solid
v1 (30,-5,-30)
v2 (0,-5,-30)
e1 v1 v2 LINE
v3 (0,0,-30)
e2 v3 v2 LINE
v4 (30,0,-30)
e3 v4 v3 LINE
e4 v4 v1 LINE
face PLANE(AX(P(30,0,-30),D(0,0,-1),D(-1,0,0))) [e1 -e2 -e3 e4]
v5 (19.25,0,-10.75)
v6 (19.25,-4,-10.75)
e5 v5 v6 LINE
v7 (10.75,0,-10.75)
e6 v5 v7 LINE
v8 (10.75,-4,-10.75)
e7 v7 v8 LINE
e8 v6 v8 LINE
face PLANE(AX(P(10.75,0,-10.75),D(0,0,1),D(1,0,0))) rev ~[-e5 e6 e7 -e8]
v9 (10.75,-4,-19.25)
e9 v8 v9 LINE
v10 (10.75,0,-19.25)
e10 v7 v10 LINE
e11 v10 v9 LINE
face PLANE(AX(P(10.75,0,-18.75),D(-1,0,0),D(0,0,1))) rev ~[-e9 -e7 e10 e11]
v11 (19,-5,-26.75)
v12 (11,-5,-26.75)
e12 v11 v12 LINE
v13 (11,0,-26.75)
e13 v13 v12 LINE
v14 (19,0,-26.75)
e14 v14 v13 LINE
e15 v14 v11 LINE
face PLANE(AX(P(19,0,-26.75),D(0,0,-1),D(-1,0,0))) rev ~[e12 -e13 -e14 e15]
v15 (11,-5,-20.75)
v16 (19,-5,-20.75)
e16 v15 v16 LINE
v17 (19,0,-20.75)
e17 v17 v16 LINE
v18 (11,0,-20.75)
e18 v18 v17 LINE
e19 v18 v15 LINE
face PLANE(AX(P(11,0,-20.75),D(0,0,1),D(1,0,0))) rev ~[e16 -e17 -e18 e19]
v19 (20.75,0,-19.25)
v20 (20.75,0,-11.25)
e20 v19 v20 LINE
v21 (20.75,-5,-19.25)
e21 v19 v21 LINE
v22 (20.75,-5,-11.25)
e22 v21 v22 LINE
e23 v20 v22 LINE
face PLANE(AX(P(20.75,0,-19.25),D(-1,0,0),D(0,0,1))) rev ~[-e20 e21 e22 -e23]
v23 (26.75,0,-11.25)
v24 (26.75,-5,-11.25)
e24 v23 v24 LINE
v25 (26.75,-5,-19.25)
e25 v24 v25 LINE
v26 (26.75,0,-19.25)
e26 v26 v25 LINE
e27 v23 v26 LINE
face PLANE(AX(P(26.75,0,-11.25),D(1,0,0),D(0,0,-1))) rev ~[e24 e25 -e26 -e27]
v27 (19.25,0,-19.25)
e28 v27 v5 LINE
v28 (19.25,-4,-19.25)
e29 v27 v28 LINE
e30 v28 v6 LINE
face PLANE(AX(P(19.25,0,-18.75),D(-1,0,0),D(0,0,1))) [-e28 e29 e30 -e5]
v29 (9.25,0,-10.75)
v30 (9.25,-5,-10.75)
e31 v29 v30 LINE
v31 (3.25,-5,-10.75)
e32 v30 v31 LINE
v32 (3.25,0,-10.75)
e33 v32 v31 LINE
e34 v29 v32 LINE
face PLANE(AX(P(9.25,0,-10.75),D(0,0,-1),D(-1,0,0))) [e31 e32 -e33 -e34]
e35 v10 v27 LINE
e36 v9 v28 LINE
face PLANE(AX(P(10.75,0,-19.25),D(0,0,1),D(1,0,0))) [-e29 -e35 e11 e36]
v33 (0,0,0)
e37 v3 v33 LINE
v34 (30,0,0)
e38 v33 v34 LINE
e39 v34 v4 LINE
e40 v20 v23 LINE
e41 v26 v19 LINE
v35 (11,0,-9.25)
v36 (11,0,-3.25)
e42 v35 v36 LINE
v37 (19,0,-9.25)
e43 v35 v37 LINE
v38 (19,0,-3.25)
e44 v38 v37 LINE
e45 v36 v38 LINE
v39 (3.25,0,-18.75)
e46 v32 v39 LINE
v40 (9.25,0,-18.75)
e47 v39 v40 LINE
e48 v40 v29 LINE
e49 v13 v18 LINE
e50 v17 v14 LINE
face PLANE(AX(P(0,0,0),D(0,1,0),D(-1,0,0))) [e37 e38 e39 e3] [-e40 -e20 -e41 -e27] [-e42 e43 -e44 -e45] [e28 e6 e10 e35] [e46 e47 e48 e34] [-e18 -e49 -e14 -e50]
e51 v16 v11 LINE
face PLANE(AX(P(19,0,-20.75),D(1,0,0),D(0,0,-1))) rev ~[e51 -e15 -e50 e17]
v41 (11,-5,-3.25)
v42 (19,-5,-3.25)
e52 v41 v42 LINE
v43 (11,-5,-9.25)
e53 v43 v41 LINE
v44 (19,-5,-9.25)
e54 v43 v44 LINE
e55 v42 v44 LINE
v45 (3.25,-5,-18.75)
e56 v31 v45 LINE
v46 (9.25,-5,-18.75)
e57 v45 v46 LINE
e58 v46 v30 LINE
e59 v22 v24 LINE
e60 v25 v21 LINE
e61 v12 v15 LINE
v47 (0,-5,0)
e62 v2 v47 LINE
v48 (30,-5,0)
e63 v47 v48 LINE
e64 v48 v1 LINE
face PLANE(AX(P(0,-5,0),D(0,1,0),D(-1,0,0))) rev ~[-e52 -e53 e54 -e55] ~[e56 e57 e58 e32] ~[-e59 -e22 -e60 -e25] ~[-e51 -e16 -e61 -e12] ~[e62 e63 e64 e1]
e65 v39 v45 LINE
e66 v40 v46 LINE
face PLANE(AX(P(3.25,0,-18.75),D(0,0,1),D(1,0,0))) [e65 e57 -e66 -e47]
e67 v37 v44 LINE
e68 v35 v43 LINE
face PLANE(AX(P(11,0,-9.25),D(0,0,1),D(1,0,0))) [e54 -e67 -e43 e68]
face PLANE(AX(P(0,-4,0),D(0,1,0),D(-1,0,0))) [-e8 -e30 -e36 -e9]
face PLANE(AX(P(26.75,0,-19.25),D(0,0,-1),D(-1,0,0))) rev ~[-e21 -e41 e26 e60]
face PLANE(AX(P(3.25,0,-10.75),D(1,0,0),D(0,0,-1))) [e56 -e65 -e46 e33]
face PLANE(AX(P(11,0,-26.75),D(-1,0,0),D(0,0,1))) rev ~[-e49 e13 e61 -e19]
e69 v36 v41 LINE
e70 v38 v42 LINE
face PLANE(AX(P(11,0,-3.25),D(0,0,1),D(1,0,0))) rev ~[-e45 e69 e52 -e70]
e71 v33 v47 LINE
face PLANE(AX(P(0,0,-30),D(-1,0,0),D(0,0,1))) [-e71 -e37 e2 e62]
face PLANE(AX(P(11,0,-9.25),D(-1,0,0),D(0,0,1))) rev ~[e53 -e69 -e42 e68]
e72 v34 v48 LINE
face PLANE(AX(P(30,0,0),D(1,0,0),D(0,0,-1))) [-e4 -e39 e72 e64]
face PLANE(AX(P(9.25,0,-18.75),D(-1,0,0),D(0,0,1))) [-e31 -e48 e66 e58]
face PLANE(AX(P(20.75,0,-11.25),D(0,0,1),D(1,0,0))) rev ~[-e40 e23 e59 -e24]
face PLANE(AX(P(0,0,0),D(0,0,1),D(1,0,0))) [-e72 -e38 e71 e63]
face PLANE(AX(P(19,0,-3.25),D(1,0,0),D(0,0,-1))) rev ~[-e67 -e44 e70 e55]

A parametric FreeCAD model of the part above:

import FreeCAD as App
import Part
import Sketcher
from FreeCAD import Vector

doc = App.newDocument("Part")
body = doc.addObject("PartDesign::Body", "Body")

# Sketch on XZ plane
sketch1 = doc.addObject("Sketcher::SketchObject", "Sketch")
body.addObject(sketch1)
sketch1.AttachmentSupport = (doc.XZ_Plane, [""])
sketch1.MapMode = "FlatFace"
sketch1.addGeometry([
    Part.LineSegment(Vector(0, -30, 0), Vector(0, 0, 0)),  # 0
    Part.LineSegment(Vector(0, 0, 0), Vector(30, 0, 0)),  # 1
    Part.LineSegment(Vector(30, 0, 0), Vector(30, -30, 0)),  # 2
    Part.LineSegment(Vector(30, -30, 0), Vector(0, -30, 0)),  # 3
    Part.LineSegment(Vector(20.75, -11.25, 0), Vector(20.75, -19.25, 0)),  # 4
    Part.LineSegment(Vector(20.75, -19.25, 0), Vector(26.75, -19.25, 0)),  # 5
    Part.LineSegment(Vector(26.75, -19.25, 0), Vector(26.75, -11.25, 0)),  # 6
    Part.LineSegment(Vector(26.75, -11.25, 0), Vector(20.75, -11.25, 0)),  # 7
    Part.LineSegment(Vector(19, -20.75, 0), Vector(11, -20.75, 0)),  # 8
    Part.LineSegment(Vector(11, -20.75, 0), Vector(11, -26.75, 0)),  # 9
    Part.LineSegment(Vector(11, -26.75, 0), Vector(19, -26.75, 0)),  # 10
    Part.LineSegment(Vector(19, -26.75, 0), Vector(19, -20.75, 0)),  # 11
    Part.LineSegment(Vector(3.25, -18.75, 0), Vector(9.25, -18.75, 0)),  # 12
    Part.LineSegment(Vector(9.25, -18.75, 0), Vector(9.25, -10.75, 0)),  # 13
    Part.LineSegment(Vector(9.25, -10.75, 0), Vector(3.25, -10.75, 0)),  # 14
    Part.LineSegment(Vector(3.25, -10.75, 0), Vector(3.25, -18.75, 0)),  # 15
    Part.LineSegment(Vector(11, -3.25, 0), Vector(11, -9.25, 0)),  # 16
    Part.LineSegment(Vector(11, -9.25, 0), Vector(19, -9.25, 0)),  # 17
    Part.LineSegment(Vector(19, -9.25, 0), Vector(19, -3.25, 0)),  # 18
    Part.LineSegment(Vector(19, -3.25, 0), Vector(11, -3.25, 0)),  # 19
], False)
sketch1.addConstraint([
    Sketcher.Constraint("Coincident", 0, 2, 1, 1),
    Sketcher.Constraint("Coincident", 1, 2, 2, 1),
    Sketcher.Constraint("Coincident", 2, 2, 3, 1),
    Sketcher.Constraint("Coincident", 3, 2, 0, 1),
    Sketcher.Constraint("Coincident", 4, 2, 5, 1),
    Sketcher.Constraint("Coincident", 5, 2, 6, 1),
    Sketcher.Constraint("Coincident", 6, 2, 7, 1),
    Sketcher.Constraint("Coincident", 7, 2, 4, 1),
    Sketcher.Constraint("Coincident", 8, 2, 9, 1),
    Sketcher.Constraint("Coincident", 9, 2, 10, 1),
    Sketcher.Constraint("Coincident", 10, 2, 11, 1),
    Sketcher.Constraint("Coincident", 11, 2, 8, 1),
    Sketcher.Constraint("Coincident", 12, 2, 13, 1),
    Sketcher.Constraint("Coincident", 13, 2, 14, 1),
    Sketcher.Constraint("Coincident", 14, 2, 15, 1),
    Sketcher.Constraint("Coincident", 15, 2, 12, 1),
    Sketcher.Constraint("Coincident", 16, 2, 17, 1),
    Sketcher.Constraint("Coincident", 17, 2, 18, 1),
    Sketcher.Constraint("Coincident", 18, 2, 19, 1),
    Sketcher.Constraint("Coincident", 19, 2, 16, 1),
    Sketcher.Constraint("Vertical", 0),
    Sketcher.Constraint("Horizontal", 1),
    Sketcher.Constraint("Vertical", 2),
    Sketcher.Constraint("Horizontal", 3),
    Sketcher.Constraint("Vertical", 4),
    Sketcher.Constraint("Horizontal", 5),
    Sketcher.Constraint("Vertical", 6),
    Sketcher.Constraint("Horizontal", 7),
    Sketcher.Constraint("Horizontal", 8),
    Sketcher.Constraint("Vertical", 9),
    Sketcher.Constraint("Horizontal", 10),
    Sketcher.Constraint("Vertical", 11),
    Sketcher.Constraint("Horizontal", 12),
    Sketcher.Constraint("Vertical", 13),
    Sketcher.Constraint("Horizontal", 14),
    Sketcher.Constraint("Vertical", 15),
    Sketcher.Constraint("Vertical", 16),
    Sketcher.Constraint("Horizontal", 17),
    Sketcher.Constraint("Vertical", 18),
    Sketcher.Constraint("Horizontal", 19),
    Sketcher.Constraint("Coincident", 0, 2, -1, 1),
    Sketcher.Constraint("Vertical", 9, 2, 16, 2),
    Sketcher.Constraint("Vertical", 11, 2, 17, 2),
    Sketcher.Constraint("Equal", 7, 12),
    Sketcher.Constraint("Equal", 3, 0),
    Sketcher.Constraint("Equal", 19, 4),
    Sketcher.Constraint("Equal", 14, 9),
    Sketcher.Constraint("Equal", 6, 13),
    Sketcher.Constraint("Equal", 11, 16),
    Sketcher.Constraint("DistanceX", 1, 1, 1, 2, 30.0),
    Sketcher.Constraint("DistanceX", 5, 1, 5, 2, 6.0),
    Sketcher.Constraint("DistanceX", 8, 2, 8, 1, 8.0),
    Sketcher.Constraint("DistanceY", 8, 2, 12, 2, 2.0),
    Sketcher.Constraint("DistanceY", 7, 2, 16, 2, 2.0),
    Sketcher.Constraint("DistanceY", 8, 2, 4, 2, 1.5),
    Sketcher.Constraint("DistanceX", -1, 1, 8, 2, 11.0),
    Sketcher.Constraint("DistanceX", 12, 2, 4, 2, 11.5),
    Sketcher.Constraint("DistanceX", -1, 1, 4, 2, 20.75),
    Sketcher.Constraint("DistanceY", 4, 2, -1, 1, 19.25),
])
pad1 = doc.addObject("PartDesign::Pad", "Pad")
body.addObject(pad1)
pad1.Profile = sketch1
pad1.Length = 5

# Sketch on XZ plane
sketch2 = doc.addObject("Sketcher::SketchObject", "Sketch001")
body.addObject(sketch2)
sketch2.AttachmentSupport = (doc.XZ_Plane, [""])
sketch2.MapMode = "FlatFace"
sketch2.addGeometry([
    Part.LineSegment(Vector(10.75, -19.25, 0), Vector(10.75, -10.75, 0)),
    Part.LineSegment(Vector(10.75, -10.75, 0), Vector(19.25, -10.75, 0)),
    Part.LineSegment(Vector(19.25, -10.75, 0), Vector(19.25, -19.25, 0)),
    Part.LineSegment(Vector(19.25, -19.25, 0), Vector(10.75, -19.25, 0)),
], False)
sketch2.addConstraint([
    Sketcher.Constraint("Coincident", 0, 2, 1, 1),
    Sketcher.Constraint("Coincident", 1, 2, 2, 1),
    Sketcher.Constraint("Coincident", 2, 2, 3, 1),
    Sketcher.Constraint("Coincident", 3, 2, 0, 1),
    Sketcher.Constraint("Vertical", 0),
    Sketcher.Constraint("Horizontal", 1),
    Sketcher.Constraint("Vertical", 2),
    Sketcher.Constraint("Horizontal", 3),
    Sketcher.Constraint("Equal", 3, 0),
    Sketcher.Constraint("DistanceX", 1, 1, 1, 2, 8.5),
    Sketcher.Constraint("DistanceX", -1, 1, 0, 2, 10.75),
    Sketcher.Constraint("DistanceY", 0, 2, -1, 1, 10.75),
])
pocket1 = doc.addObject("PartDesign::Pocket", "Pocket")
body.addObject(pocket1)
pocket1.Profile = sketch2
pocket1.Length = 4
pocket1.Reversed = True

doc.recompute()
